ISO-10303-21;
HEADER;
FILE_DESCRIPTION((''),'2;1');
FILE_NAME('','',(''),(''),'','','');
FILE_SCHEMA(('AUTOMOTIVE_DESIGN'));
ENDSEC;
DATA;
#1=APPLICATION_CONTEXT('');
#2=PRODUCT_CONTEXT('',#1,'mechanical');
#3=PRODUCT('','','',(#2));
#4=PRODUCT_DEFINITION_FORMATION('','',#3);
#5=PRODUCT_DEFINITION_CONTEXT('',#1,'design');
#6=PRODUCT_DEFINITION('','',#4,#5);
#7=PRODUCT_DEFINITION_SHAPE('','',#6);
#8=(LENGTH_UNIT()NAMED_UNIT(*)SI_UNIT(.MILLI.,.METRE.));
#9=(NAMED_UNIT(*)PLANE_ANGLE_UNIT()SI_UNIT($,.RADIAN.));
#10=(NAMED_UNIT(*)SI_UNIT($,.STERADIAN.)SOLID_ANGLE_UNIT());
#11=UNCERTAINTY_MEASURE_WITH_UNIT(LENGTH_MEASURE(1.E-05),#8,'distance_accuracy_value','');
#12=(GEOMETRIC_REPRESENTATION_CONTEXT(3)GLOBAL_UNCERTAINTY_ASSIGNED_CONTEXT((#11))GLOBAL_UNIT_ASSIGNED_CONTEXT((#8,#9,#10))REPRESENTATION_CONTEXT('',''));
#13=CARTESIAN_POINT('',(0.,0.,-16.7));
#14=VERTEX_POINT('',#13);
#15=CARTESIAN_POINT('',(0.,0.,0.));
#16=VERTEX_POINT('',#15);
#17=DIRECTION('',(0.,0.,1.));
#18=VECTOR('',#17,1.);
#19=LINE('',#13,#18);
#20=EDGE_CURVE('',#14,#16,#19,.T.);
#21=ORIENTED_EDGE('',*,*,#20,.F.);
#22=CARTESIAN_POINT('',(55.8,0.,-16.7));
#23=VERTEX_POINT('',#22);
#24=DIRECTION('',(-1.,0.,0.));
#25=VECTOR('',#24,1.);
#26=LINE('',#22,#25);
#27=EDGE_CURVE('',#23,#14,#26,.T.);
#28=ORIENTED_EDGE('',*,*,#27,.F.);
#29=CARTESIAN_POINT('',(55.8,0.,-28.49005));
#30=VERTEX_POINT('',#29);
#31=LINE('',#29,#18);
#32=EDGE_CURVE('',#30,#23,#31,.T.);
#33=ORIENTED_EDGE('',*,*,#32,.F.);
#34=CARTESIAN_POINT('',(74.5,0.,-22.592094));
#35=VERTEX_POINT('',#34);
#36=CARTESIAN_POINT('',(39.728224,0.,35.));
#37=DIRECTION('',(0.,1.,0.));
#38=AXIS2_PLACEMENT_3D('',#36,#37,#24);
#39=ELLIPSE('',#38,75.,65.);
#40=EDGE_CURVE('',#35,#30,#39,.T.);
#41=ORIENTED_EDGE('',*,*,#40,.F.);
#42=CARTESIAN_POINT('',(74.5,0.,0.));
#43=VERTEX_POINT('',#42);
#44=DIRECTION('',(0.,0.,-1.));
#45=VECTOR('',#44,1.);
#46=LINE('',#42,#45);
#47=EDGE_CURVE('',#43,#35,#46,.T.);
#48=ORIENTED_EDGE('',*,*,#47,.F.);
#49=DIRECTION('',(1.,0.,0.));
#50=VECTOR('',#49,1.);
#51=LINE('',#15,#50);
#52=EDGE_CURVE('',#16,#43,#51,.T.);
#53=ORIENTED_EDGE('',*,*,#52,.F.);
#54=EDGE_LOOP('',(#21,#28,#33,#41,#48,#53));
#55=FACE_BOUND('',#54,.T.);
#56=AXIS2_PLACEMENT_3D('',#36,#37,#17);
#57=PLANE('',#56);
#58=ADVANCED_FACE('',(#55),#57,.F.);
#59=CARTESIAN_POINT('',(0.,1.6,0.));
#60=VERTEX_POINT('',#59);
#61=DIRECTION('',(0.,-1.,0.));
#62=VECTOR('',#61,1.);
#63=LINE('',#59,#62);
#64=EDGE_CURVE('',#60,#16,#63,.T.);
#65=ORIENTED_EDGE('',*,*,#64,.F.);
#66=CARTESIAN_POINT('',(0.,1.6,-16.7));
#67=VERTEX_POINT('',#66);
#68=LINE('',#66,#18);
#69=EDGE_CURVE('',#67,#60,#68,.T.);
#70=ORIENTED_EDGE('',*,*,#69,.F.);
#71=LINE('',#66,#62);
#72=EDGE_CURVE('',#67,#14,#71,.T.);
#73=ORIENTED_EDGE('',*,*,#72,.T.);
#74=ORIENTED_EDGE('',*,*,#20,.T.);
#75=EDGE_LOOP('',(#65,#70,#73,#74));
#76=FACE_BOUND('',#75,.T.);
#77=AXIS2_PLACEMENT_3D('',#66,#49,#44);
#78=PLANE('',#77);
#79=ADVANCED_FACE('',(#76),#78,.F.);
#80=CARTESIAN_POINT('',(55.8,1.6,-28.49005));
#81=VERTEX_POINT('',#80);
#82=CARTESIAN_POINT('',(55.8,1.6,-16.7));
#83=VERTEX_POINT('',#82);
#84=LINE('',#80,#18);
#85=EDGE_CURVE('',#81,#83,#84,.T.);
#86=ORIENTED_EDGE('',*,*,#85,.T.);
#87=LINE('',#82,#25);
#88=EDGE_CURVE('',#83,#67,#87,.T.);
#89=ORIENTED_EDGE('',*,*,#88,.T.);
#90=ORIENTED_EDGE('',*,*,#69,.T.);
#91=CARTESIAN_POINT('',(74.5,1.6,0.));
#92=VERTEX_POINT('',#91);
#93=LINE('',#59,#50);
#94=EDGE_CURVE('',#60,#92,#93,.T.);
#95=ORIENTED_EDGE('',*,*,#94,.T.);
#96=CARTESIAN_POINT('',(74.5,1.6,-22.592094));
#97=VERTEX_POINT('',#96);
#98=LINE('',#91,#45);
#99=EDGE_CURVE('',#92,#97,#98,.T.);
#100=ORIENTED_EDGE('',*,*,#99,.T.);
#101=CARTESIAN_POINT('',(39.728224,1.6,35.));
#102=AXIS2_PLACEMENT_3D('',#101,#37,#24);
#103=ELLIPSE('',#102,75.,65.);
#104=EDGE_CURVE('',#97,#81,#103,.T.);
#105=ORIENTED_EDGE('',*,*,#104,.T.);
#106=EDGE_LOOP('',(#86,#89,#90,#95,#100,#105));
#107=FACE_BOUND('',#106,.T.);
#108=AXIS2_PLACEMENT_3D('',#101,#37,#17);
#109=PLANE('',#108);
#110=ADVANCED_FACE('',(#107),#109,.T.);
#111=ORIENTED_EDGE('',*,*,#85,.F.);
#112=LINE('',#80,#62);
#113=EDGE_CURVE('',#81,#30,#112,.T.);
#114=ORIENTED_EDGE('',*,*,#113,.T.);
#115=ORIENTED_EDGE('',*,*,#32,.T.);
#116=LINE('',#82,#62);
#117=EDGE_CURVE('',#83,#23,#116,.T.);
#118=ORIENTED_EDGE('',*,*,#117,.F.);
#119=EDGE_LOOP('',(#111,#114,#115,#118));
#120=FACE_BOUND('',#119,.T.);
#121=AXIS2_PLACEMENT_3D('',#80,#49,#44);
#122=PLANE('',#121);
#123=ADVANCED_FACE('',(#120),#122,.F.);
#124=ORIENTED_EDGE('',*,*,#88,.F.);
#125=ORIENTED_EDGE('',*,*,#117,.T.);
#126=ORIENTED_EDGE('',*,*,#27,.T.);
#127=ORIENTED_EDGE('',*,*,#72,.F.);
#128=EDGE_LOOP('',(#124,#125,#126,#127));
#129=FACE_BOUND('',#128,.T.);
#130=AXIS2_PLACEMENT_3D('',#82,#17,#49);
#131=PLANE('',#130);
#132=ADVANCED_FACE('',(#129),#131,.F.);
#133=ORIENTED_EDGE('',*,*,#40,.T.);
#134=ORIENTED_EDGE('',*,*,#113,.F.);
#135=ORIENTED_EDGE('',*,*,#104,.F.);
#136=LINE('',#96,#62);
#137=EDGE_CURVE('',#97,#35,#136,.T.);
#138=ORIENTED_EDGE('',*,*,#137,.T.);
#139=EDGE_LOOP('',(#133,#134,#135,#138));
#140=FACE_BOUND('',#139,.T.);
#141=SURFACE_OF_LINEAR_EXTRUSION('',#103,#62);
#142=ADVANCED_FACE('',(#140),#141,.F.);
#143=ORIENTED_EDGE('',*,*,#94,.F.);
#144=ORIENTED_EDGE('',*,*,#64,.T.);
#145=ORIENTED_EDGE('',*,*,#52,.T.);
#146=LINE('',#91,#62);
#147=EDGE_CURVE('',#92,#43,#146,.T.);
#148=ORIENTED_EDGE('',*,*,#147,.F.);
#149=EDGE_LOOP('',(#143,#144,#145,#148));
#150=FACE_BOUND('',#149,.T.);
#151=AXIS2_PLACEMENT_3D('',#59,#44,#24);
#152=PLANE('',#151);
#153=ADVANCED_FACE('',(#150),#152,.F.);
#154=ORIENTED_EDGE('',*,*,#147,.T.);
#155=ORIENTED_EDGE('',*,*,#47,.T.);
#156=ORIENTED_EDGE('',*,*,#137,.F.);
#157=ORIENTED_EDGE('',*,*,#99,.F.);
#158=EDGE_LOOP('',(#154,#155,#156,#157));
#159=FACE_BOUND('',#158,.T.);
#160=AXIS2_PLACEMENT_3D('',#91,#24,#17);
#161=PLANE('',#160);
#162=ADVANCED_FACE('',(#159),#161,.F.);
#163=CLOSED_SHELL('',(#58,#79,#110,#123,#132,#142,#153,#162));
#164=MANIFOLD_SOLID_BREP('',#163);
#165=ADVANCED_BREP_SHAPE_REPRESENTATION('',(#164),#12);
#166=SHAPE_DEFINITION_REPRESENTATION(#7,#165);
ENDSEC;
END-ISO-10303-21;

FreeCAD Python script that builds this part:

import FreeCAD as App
import Part
import Sketcher
Q = App.Units.Quantity

doc = App.newDocument("Part")
params = doc.addObject("Spreadsheet::Sheet", "Params")
for row, (alias, value) in enumerate([
    ("sketch1_height", "16.7 mm"),
    ("pad1_length", "1.6 mm"),
], start=1):
    params.set(f"A{row}", alias)
    params.set(f"B{row}", "=" + value)
    params.setAlias(f"B{row}", alias)

body = doc.addObject("PartDesign::Body", "Body")

sketch1 = body.newObject("Sketcher::SketchObject", "Sketch")
sketch1.AttachmentSupport = (doc.getObject("XZ_Plane"), [""])
sketch1.MapMode = "FlatFace"
sketch1.addGeometry([
    Part.LineSegment(App.Vector(0, 0, 0), App.Vector(74.5, 0, 0)),
    Part.LineSegment(App.Vector(74.5, 0, 0), App.Vector(74.5, -22.592094, 0)),
    Part.BSplineCurve([App.Vector(74.5, -22.592094, 0), App.Vector(65.605442, -26.625691, 0), App.Vector(55.8, -28.49005, 0)], [3, 3], [4.23030835, 4.496423735], False, 2, [1, 0.991160878, 1], False),
    Part.LineSegment(App.Vector(55.8, -28.49005, 0), App.Vector(55.8, -16.7, 0)),
    Part.LineSegment(App.Vector(55.8, -16.7, 0), App.Vector(0, -16.7, 0)),
    Part.LineSegment(App.Vector(0, -16.7, 0), App.Vector(0, 0, 0)),
], False)
sketch1.addConstraint([
    Sketcher.Constraint("Block", 2),
    Sketcher.Constraint("Coincident", 0, 2, 1, 1),
    Sketcher.Constraint("Coincident", 1, 2, 2, 1),
    Sketcher.Constraint("Coincident", 2, 2, 3, 1),
    Sketcher.Constraint("Coincident", 3, 2, 4, 1),
    Sketcher.Constraint("Coincident", 4, 2, 5, 1),
    Sketcher.Constraint("Coincident", 5, 2, 0, 1),
    Sketcher.Constraint("Horizontal", 0),
    Sketcher.Constraint("Vertical", 1),
    Sketcher.Constraint("Vertical", 3),
    Sketcher.Constraint("Horizontal", 4),
    Sketcher.Constraint("Vertical", 5),
    Sketcher.Constraint("Coincident", 5, 2, -1, 1),
    Sketcher.Constraint("DistanceY", 5, 1, 5, 2, Q("16.7 mm")),
])
sketch1.setExpression("Constraints[13]", "Params.sketch1_height")
pad1 = body.newObject("PartDesign::Pad", "Pad")
pad1.Profile = sketch1
pad1.setExpression("Length", "Params.pad1_length")
pad1.Reversed = True

doc.recompute()
